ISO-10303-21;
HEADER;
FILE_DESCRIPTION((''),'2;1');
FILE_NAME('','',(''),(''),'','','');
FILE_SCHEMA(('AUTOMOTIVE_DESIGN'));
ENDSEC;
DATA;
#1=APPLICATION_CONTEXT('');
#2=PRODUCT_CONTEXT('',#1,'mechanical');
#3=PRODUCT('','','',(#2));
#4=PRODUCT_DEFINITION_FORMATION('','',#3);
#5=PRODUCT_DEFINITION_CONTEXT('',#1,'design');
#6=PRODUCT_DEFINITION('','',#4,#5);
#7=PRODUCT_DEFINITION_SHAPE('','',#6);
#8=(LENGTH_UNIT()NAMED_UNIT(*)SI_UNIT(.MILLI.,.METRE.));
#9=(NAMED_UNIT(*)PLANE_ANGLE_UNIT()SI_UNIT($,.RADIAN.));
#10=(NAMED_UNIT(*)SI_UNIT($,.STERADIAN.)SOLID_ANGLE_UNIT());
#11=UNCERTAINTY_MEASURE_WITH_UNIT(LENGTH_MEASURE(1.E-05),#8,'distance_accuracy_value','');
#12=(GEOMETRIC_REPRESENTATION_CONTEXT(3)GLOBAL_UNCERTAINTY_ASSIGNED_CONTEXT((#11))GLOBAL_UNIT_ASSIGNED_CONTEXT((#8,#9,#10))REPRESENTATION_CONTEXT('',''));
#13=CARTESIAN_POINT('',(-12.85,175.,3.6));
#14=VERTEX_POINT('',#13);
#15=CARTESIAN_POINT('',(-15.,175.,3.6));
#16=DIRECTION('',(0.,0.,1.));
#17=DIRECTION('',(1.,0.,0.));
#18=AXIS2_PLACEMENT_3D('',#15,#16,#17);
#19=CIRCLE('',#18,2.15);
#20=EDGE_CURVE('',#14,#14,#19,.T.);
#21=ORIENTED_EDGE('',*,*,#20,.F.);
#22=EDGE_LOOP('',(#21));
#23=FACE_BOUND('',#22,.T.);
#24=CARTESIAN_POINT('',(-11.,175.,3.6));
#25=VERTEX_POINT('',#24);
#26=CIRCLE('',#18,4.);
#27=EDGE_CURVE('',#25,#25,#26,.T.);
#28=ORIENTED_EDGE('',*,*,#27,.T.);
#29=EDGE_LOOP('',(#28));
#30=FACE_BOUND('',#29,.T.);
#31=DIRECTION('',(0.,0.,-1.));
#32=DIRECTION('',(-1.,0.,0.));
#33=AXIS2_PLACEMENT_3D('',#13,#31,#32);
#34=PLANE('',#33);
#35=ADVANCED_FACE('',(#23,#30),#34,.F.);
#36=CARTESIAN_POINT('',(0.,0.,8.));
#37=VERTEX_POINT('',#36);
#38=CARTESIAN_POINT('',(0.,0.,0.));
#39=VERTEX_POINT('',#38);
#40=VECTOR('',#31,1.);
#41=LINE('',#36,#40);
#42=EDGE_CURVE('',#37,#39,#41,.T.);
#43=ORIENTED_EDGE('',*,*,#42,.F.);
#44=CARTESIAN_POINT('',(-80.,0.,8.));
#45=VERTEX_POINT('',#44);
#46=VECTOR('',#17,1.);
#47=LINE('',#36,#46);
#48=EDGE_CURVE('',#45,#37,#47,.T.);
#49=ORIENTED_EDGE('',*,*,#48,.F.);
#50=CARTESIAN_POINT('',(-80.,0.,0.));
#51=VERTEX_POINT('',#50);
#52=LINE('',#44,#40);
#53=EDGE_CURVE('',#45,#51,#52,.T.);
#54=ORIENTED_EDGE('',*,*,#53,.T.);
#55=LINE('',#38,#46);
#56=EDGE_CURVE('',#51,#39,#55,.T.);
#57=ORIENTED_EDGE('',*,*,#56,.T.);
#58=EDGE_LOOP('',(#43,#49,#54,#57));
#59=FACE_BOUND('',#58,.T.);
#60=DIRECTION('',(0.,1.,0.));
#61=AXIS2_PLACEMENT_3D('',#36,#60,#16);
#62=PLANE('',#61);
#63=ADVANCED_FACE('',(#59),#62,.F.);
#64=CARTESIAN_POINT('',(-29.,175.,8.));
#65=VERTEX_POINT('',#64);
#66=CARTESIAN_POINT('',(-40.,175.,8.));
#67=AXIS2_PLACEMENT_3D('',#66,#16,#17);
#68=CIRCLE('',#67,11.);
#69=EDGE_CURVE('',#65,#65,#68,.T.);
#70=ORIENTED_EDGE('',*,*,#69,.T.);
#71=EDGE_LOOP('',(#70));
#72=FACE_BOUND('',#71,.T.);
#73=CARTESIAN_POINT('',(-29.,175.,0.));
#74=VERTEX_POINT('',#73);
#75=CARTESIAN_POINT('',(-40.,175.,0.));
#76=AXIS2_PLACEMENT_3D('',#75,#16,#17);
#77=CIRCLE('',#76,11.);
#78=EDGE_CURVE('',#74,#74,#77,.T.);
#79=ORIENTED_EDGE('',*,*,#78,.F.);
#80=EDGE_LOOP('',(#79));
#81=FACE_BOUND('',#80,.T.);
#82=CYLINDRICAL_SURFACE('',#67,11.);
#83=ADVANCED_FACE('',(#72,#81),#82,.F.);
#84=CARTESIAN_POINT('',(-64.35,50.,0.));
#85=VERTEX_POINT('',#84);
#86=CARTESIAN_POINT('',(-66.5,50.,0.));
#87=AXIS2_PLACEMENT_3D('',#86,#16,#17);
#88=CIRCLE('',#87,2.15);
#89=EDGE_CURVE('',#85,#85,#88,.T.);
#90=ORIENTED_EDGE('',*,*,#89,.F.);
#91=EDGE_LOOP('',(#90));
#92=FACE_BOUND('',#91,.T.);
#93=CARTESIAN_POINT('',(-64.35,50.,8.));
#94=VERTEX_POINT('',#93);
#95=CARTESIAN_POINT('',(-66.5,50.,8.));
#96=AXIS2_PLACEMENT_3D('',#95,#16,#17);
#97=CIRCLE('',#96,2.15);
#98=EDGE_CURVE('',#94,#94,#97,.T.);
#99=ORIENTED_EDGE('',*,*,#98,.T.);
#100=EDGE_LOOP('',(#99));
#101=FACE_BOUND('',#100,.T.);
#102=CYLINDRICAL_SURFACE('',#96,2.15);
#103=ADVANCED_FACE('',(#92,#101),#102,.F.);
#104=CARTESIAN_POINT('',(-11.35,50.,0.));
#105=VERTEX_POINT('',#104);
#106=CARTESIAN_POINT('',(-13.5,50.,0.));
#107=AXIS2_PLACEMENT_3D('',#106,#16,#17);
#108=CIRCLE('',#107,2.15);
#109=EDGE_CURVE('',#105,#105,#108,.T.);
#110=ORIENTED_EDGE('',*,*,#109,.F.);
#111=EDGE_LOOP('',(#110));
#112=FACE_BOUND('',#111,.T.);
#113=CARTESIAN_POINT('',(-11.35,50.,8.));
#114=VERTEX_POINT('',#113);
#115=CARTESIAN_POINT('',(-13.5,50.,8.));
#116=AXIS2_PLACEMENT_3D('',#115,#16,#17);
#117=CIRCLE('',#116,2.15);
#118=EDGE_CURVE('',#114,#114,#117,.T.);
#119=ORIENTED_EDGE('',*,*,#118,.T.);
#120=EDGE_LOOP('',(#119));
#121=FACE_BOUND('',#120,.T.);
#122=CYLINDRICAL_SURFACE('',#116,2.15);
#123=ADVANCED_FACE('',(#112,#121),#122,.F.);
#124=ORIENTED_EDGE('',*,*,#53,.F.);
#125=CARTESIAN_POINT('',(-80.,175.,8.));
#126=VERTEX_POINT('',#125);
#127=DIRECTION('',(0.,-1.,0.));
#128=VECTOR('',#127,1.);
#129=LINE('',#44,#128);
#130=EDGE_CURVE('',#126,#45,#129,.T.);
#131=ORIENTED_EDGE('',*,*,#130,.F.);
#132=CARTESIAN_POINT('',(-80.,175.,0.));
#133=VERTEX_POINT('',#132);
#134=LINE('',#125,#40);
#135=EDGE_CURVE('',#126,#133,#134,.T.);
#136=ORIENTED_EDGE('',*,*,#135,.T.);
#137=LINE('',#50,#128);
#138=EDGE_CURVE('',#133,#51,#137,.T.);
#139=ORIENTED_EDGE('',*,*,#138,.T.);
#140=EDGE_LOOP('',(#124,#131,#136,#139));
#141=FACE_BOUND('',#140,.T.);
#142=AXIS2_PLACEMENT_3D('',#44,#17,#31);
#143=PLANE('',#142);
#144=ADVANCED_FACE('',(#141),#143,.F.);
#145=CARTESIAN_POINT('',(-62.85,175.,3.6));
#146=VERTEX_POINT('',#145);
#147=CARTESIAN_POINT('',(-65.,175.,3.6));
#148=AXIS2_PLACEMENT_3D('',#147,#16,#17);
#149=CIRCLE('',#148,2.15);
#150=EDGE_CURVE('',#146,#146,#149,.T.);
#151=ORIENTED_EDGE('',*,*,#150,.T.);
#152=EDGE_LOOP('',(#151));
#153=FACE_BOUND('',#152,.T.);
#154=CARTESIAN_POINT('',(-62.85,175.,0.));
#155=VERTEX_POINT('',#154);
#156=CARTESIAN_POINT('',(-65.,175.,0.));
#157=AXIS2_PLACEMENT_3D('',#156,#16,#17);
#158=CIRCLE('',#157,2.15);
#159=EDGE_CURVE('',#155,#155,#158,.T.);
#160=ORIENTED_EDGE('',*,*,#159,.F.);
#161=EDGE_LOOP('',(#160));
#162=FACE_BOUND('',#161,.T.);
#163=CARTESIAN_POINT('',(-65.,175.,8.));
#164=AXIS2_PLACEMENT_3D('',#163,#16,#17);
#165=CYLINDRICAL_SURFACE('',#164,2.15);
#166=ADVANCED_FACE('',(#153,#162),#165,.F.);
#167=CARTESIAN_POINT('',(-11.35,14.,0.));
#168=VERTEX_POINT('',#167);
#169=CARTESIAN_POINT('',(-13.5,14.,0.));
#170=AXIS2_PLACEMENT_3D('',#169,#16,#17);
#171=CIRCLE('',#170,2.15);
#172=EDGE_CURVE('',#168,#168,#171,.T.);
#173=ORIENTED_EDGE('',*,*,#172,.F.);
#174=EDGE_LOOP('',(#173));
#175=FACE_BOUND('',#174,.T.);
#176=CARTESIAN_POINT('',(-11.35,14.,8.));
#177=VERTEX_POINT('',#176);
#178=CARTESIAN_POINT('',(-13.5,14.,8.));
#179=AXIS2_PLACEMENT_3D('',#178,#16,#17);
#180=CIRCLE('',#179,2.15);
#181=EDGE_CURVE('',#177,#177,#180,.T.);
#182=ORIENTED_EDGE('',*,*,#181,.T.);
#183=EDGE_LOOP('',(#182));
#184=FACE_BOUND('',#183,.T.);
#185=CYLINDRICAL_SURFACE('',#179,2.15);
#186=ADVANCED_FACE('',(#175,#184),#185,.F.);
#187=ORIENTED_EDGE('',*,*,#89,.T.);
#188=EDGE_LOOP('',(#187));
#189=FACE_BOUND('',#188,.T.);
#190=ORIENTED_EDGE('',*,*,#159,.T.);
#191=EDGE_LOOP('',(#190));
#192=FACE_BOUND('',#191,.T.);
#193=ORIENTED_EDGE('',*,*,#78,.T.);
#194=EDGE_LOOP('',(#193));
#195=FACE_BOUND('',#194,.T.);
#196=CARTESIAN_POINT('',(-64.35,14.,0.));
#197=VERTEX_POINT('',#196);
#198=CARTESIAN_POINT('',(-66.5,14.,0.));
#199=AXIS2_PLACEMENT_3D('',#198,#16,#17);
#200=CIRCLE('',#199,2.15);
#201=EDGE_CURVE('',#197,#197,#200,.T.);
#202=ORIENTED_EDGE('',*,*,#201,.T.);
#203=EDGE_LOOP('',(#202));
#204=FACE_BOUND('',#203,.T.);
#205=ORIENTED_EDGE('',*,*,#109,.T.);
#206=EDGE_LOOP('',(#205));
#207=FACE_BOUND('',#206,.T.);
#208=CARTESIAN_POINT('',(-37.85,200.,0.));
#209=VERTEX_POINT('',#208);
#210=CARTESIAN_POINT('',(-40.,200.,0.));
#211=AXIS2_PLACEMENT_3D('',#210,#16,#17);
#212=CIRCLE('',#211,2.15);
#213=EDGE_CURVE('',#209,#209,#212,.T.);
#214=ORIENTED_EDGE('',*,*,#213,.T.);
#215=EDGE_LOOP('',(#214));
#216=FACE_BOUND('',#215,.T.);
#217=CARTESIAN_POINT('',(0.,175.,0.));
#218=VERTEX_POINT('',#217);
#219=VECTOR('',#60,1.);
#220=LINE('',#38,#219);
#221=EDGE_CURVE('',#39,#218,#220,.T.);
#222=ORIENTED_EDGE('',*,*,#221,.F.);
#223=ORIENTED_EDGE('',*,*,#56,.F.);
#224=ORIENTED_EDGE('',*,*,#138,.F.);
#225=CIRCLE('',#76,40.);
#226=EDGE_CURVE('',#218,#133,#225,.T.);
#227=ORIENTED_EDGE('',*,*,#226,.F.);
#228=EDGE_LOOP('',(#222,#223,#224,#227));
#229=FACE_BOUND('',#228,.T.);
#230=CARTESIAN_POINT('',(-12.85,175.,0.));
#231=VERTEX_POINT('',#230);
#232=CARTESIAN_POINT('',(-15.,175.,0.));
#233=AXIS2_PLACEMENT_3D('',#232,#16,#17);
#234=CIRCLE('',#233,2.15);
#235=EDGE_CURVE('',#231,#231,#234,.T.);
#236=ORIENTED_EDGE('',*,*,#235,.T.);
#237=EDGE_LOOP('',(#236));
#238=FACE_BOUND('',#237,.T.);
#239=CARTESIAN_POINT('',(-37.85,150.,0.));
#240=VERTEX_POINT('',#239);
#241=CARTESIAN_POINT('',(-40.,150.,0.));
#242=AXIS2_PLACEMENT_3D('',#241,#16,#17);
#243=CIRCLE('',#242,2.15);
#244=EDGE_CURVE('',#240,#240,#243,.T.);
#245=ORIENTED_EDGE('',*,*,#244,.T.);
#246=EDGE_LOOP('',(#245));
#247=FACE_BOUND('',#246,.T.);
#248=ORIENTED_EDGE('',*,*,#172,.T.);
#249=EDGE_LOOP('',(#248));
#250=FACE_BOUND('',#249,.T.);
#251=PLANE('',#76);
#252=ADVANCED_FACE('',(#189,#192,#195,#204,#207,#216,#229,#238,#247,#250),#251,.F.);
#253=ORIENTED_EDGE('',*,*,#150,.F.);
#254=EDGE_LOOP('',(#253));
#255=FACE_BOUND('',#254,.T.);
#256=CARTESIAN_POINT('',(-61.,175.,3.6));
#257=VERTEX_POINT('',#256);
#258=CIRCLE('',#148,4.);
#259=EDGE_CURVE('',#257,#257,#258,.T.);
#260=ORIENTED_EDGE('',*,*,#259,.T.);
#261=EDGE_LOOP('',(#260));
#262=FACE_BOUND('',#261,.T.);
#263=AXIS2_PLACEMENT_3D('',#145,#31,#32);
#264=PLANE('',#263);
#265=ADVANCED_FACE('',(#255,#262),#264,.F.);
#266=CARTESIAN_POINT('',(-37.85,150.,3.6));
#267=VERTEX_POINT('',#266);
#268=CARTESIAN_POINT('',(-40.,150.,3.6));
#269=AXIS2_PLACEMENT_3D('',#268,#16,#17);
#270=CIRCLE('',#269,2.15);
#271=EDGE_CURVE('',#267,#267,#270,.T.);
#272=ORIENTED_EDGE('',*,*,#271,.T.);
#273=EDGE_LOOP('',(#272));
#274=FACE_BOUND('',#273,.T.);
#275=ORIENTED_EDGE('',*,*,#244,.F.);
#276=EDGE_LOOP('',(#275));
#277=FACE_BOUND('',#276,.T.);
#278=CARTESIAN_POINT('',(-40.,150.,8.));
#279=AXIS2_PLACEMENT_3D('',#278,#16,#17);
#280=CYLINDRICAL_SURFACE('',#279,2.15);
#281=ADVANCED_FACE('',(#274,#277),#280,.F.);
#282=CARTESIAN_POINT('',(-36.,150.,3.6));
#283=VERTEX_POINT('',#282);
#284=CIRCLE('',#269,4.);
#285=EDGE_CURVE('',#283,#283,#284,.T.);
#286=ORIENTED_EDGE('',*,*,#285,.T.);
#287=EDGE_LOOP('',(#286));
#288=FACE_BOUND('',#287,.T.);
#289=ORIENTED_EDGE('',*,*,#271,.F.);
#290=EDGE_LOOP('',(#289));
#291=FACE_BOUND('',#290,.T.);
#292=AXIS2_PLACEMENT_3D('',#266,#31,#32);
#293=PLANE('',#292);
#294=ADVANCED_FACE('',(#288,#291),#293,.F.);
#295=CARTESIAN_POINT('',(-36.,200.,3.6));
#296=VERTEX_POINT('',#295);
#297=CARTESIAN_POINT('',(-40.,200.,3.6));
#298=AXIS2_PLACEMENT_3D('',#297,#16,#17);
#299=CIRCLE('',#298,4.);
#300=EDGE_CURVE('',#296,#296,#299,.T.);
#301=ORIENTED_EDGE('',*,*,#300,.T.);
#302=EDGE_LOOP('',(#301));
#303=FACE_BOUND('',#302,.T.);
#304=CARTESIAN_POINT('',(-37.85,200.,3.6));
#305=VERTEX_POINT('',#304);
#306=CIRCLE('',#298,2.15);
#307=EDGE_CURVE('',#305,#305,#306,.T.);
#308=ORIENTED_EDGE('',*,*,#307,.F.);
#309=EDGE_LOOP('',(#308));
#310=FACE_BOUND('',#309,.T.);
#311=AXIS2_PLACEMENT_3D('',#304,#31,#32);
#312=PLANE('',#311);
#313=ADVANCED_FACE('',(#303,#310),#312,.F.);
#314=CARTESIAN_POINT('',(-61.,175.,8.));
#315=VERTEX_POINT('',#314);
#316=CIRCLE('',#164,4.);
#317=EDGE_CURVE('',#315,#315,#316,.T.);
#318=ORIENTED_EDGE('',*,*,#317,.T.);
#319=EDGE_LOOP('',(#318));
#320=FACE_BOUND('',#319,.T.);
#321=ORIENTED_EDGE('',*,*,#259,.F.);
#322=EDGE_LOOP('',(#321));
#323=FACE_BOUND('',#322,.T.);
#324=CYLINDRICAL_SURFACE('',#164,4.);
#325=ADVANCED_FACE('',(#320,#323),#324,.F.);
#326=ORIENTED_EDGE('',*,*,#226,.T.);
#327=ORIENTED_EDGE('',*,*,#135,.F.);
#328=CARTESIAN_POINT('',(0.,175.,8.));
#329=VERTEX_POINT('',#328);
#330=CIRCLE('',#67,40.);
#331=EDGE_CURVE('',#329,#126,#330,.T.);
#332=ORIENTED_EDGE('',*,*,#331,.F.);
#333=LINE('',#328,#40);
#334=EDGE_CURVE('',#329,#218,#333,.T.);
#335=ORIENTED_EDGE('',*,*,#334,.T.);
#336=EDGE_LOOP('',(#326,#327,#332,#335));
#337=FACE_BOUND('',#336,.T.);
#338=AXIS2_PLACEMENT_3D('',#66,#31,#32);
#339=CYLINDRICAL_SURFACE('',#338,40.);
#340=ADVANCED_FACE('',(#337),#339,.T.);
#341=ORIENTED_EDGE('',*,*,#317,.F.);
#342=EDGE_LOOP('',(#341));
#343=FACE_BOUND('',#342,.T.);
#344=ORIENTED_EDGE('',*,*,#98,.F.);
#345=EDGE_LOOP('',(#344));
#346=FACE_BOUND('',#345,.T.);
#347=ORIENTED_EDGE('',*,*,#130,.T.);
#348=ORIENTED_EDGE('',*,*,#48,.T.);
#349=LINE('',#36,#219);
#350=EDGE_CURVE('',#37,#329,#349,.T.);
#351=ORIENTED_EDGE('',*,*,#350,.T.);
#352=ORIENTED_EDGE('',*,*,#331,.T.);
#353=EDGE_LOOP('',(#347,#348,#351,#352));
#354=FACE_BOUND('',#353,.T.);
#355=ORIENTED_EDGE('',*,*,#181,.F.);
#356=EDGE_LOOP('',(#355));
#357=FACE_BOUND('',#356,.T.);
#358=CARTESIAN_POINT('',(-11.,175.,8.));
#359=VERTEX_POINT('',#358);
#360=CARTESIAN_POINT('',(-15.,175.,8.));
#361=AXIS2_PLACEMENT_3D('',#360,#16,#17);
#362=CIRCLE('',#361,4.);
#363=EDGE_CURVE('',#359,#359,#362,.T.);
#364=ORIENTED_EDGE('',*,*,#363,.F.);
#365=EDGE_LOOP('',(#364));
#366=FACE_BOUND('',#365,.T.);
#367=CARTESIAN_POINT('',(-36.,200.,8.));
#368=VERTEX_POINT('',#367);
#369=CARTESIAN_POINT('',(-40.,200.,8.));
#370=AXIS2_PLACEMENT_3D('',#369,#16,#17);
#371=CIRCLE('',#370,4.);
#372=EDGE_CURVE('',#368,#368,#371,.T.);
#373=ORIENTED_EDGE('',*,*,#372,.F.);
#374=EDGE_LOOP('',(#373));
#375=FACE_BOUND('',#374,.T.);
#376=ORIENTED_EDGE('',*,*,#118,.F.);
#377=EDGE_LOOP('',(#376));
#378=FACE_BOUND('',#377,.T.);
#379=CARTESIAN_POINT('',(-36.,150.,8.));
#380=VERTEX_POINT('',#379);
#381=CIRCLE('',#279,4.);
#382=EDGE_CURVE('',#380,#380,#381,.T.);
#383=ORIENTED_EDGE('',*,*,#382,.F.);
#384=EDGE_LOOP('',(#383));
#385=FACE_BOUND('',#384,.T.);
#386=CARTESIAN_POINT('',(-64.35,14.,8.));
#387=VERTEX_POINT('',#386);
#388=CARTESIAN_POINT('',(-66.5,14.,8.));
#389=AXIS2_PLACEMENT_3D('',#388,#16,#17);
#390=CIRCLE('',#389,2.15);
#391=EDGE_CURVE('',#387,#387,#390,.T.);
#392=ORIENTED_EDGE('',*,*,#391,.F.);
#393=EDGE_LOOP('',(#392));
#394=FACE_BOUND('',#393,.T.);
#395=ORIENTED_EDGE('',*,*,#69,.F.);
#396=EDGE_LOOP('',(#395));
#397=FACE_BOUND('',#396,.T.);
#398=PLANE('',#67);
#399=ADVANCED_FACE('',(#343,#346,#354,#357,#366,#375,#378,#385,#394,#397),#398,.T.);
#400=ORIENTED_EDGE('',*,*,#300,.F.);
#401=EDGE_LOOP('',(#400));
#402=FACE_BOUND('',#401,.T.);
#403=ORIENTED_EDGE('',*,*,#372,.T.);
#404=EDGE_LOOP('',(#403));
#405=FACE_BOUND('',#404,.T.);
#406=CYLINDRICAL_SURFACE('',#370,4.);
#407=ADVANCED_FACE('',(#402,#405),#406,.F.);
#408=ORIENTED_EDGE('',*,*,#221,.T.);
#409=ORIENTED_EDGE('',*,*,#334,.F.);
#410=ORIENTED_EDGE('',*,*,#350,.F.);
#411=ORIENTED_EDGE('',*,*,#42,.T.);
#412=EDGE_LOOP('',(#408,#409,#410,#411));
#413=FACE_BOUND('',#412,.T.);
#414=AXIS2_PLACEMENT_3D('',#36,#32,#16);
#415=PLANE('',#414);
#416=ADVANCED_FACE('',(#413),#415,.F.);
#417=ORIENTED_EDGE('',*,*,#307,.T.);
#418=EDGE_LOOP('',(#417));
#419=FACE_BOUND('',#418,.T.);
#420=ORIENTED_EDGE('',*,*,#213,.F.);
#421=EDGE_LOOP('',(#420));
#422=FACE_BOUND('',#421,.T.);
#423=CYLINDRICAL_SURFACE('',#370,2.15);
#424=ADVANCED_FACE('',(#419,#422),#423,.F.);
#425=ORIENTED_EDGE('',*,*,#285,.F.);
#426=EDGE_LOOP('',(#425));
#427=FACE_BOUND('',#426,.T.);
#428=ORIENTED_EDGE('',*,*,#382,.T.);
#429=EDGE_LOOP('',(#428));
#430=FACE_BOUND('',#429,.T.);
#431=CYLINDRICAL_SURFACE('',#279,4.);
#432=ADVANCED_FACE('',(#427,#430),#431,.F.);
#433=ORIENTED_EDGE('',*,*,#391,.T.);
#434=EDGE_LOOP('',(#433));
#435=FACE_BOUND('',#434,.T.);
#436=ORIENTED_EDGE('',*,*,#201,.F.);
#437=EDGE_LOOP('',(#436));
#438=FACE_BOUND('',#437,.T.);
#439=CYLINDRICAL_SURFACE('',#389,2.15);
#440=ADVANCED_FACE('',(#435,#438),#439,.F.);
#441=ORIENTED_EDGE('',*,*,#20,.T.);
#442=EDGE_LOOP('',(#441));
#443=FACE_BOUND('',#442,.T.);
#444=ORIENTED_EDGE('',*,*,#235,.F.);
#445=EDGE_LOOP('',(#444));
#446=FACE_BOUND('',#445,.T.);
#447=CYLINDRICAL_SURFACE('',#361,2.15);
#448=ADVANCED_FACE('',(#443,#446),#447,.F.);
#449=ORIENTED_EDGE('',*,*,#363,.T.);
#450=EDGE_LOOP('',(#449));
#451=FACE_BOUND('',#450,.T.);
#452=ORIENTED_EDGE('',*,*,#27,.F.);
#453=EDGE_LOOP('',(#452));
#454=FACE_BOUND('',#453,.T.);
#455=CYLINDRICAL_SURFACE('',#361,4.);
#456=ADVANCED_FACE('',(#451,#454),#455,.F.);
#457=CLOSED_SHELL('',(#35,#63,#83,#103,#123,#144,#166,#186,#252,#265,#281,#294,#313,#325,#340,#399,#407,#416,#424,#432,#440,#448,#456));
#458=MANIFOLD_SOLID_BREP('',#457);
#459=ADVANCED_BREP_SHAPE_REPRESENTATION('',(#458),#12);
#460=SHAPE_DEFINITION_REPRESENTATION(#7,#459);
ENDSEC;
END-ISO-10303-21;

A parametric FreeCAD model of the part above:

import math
import FreeCAD as App
import Part
import Sketcher
Q = App.Units.Quantity

doc = App.newDocument("Part")
body = doc.addObject("PartDesign::Body", "Body")

sketch1 = doc.addObject("Sketcher::SketchObject", "Sketch")
body.addObject(sketch1)
sketch1.AttachmentSupport = (doc.XY_Plane, [""])
sketch1.MapMode = "FlatFace"
sketch1.addGeometry(Part.LineSegment(App.Vector(-80, 0, 0), App.Vector(0, 0, 0)), False)
sketch1.addGeometry(Part.LineSegment(App.Vector(0, 0, 0), App.Vector(0, 175, 0)), False)
sketch1.addGeometry(Part.ArcOfCircle(Part.Circle(App.Vector(-40, 175, 0), App.Vector(0, 0, 1), 40), math.radians(0), math.radians(180)), False)
sketch1.addGeometry(Part.LineSegment(App.Vector(-80, 175, 0), App.Vector(-80, 0, 0)), False)
sketch1.addGeometry(Part.Circle(App.Vector(-40, 175, 0), App.Vector(0, 0, 1), 8), False)
sketch1.addConstraint(Sketcher.Constraint("Coincident", 0, 2, 1, 1))
sketch1.addConstraint(Sketcher.Constraint("Tangent", 1, 2, 2, 1))
sketch1.addConstraint(Sketcher.Constraint("Tangent", 2, 2, 3, 1))
sketch1.addConstraint(Sketcher.Constraint("Coincident", 3, 2, 0, 1))
sketch1.addConstraint(Sketcher.Constraint("Horizontal", 0))
sketch1.addConstraint(Sketcher.Constraint("Vertical", 1))
sketch1.addConstraint(Sketcher.Constraint("Vertical", 3))
sketch1.addConstraint(Sketcher.Constraint("Coincident", 0, 2, -1, 1))
sketch1.addConstraint(Sketcher.Constraint("Coincident", 4, 3, 2, 3))
sketch1.addConstraint(Sketcher.Constraint("Diameter", 4, Q("16 mm")))
sketch1.addConstraint(Sketcher.Constraint("Radius", 2, Q("40 mm")))
sketch1.addConstraint(Sketcher.Constraint("DistanceY", 1, 1, 1, 2, Q("175 mm")))
pad1 = doc.addObject("PartDesign::Pad", "Pad")
body.addObject(pad1)
pad1.Profile = sketch1
pad1.Length = 8

sketch2 = doc.addObject("Sketcher::SketchObject", "Sketch001")
body.addObject(sketch2)
sketch2.AttachmentSupport = (doc.XY_Plane, [""])
sketch2.MapMode = "FlatFace"
sketch2.AttachmentOffset = App.Placement(App.Vector(0, 0, 8), App.Rotation())
sketch2.addGeometry(Part.Circle(App.Vector(-40, 200, 0), App.Vector(0, 0, 1), 2.15), False)
sketch2.addGeometry(Part.Circle(App.Vector(-15, 175, 0), App.Vector(0, 0, 1), 2.15), False)
sketch2.addGeometry(Part.Circle(App.Vector(-40, 150, 0), App.Vector(0, 0, 1), 2.15), False)
sketch2.addGeometry(Part.Circle(App.Vector(-65, 175, 0), App.Vector(0, 0, 1), 2.15), False)
sketch2.addConstraint(Sketcher.Constraint("Equal", 0, 1))
sketch2.addConstraint(Sketcher.Constraint("Equal", 1, 2))
sketch2.addConstraint(Sketcher.Constraint("Equal", 2, 3))
sketch2.addConstraint(Sketcher.Constraint("Horizontal", 1, 3, 3, 3))
sketch2.addConstraint(Sketcher.Constraint("Vertical", 0, 3, 2, 3))
sketch2.addConstraint(Sketcher.Constraint("Diameter", 0, Q("4.3 mm")))
sketch2.addConstraint(Sketcher.Constraint("DistanceX", 0, 3, -1, 1, Q("40 mm")))
sketch2.addConstraint(Sketcher.Constraint("DistanceY", -1, 1, 0, 3, Q("200 mm")))
sketch2.addConstraint(Sketcher.Constraint("DistanceX", 1, 3, -1, 1, Q("15 mm")))
sketch2.addConstraint(Sketcher.Constraint("DistanceY", -1, 1, 1, 3, Q("175 mm")))
sketch2.addConstraint(Sketcher.Constraint("DistanceY", -1, 1, 2, 3, Q("150 mm")))
sketch2.addConstraint(Sketcher.Constraint("DistanceX", 3, 3, -1, 1, Q("65 mm")))
doc.recompute()
hole = doc.addObject("PartDesign::Hole", "Hole")
body.addObject(hole)
hole.Profile = sketch2
hole.ThreadType = "None"
hole.Diameter = 4.3
hole.DepthType = "ThroughAll"
hole.HoleCutType = "Counterbore"
hole.HoleCutDiameter = 8
hole.HoleCutDepth = 4.4

sketch3 = doc.addObject("Sketcher::SketchObject", "Sketch002")
body.addObject(sketch3)
sketch3.AttachmentSupport = (doc.XY_Plane, [""])
sketch3.MapMode = "FlatFace"
sketch3.AttachmentOffset = App.Placement(App.Vector(0, 0, 8), App.Rotation())
sketch3.addGeometry(Part.Circle(App.Vector(-40, 175, 0), App.Vector(0, 0, 1), 11), False)
sketch3.addConstraint(Sketcher.Constraint("Diameter", 0, Q("22 mm")))
sketch3.addConstraint(Sketcher.Constraint("DistanceX", 0, 3, -1, 1, Q("40 mm")))
sketch3.addConstraint(Sketcher.Constraint("DistanceY", -1, 1, 0, 3, Q("175 mm")))
doc.recompute()
hole2 = doc.addObject("PartDesign::Hole", "Hole001")
body.addObject(hole2)
hole2.Profile = sketch3
hole2.ThreadType = "None"
hole2.Diameter = 22
hole2.DepthType = "ThroughAll"

sketch4 = doc.addObject("Sketcher::SketchObject", "Sketch003")
body.addObject(sketch4)
sketch4.AttachmentSupport = (doc.XY_Plane, [""])
sketch4.MapMode = "FlatFace"
sketch4.AttachmentOffset = App.Placement(App.Vector(0, 0, 8), App.Rotation())
sketch4.addGeometry(Part.Circle(App.Vector(-66.5, 50, 0), App.Vector(0, 0, 1), 2.15), False)
sketch4.addGeometry(Part.Circle(App.Vector(-13.5, 14, 0), App.Vector(0, 0, 1), 2.15), False)
sketch4.addGeometry(Part.Circle(App.Vector(-66.5, 14, 0), App.Vector(0, 0, 1), 2.15), False)
sketch4.addGeometry(Part.Circle(App.Vector(-13.5, 50, 0), App.Vector(0, 0, 1), 2.15), False)
sketch4.addConstraint(Sketcher.Constraint("Equal", 0, 1))
sketch4.addConstraint(Sketcher.Constraint("Equal", 1, 2))
sketch4.addConstraint(Sketcher.Constraint("Equal", 2, 3))
sketch4.addConstraint(Sketcher.Constraint("Horizontal", 1, 3, 2, 3))
sketch4.addConstraint(Sketcher.Constraint("Horizontal", 0, 3, 3, 3))
sketch4.addConstraint(Sketcher.Constraint("Vertical", 0, 3, 2, 3))
sketch4.addConstraint(Sketcher.Constraint("Vertical", 1, 3, 3, 3))
sketch4.addConstraint(Sketcher.Constraint("Diameter", 0, Q("4.3 mm")))
sketch4.addConstraint(Sketcher.Constraint("DistanceY", -1, 1, 0, 3, Q("50 mm")))
sketch4.addConstraint(Sketcher.Constraint("DistanceY", -1, 1, 1, 3, Q("14 mm")))
sketch4.addConstraint(Sketcher.Constraint("DistanceX", 0, 3, 1, 3, Q("53 mm")))
sketch4.addConstraint(Sketcher.Constraint("DistanceX", 0, 3, -1, 1, Q("66.5 mm")))
doc.recompute()
hole3 = doc.addObject("PartDesign::Hole", "Hole002")
body.addObject(hole3)
hole3.Profile = sketch4
hole3.ThreadType = "None"
hole3.Diameter = 4.3
hole3.DepthType = "ThroughAll"

doc.recompute()
